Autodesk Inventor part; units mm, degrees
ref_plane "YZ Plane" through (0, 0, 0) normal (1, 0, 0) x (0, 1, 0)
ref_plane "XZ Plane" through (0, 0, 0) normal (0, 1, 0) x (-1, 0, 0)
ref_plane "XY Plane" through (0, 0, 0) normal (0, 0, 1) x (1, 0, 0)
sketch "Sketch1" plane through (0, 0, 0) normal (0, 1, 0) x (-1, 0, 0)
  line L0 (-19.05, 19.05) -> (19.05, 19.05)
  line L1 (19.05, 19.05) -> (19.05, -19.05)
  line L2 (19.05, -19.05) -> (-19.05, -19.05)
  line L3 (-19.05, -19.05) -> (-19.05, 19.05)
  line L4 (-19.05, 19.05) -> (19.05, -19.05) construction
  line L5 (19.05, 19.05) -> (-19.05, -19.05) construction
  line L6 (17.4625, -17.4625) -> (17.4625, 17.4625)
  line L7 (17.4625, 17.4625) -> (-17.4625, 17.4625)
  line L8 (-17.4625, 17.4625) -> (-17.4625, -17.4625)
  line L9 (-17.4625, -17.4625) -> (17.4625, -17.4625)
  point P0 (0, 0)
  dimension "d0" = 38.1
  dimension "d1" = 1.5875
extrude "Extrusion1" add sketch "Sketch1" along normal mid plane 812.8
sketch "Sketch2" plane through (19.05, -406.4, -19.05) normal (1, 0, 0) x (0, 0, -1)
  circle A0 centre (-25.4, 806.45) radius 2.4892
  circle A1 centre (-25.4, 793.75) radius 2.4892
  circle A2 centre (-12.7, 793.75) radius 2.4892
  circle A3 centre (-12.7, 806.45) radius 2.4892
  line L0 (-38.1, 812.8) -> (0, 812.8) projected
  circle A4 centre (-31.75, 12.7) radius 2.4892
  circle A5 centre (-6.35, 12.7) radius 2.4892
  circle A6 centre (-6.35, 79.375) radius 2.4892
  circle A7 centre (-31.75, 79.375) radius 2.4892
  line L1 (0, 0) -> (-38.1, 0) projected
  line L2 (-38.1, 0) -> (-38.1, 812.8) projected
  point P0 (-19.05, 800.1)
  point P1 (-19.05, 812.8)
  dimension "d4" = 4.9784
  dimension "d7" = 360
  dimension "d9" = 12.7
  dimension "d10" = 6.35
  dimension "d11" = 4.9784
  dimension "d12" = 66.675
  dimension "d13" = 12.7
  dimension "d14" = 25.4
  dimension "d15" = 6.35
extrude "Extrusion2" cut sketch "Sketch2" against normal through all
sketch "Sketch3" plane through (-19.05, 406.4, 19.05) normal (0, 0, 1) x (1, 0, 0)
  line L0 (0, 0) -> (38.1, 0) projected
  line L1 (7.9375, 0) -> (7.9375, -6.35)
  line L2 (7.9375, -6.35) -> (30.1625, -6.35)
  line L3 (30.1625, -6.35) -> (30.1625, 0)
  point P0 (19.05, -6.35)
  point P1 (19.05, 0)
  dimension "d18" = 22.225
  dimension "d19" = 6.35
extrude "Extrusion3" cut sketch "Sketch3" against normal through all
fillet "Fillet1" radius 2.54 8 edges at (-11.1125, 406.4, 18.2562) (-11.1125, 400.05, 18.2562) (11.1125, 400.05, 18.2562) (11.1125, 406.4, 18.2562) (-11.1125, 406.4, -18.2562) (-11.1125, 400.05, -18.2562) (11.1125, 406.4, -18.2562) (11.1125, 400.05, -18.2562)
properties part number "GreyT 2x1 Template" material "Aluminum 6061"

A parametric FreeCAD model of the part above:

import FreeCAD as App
import Part
import Sketcher

V = App.Vector
Q = App.Units.Quantity


def edges_at(feature, points):
    """Names of the edges that pass closest to the given points."""
    edges = feature.Shape.Edges
    near = lambda p: min(range(len(edges)), key=lambda i: edges[i].distToShape(Part.Vertex(*p))[0])
    return sorted({f"Edge{near(p) + 1}" for p in points})

doc = App.newDocument("Part")
body = doc.addObject("PartDesign::Body", "Body")

# Sketch on XZ plane
sketch1 = doc.addObject("Sketcher::SketchObject", "Sketch")
body.addObject(sketch1)
sketch1.AttachmentSupport = (doc.XZ_Plane, [""])
sketch1.MapMode = "FlatFace"
sketch1.addGeometry([
    Part.LineSegment(V(-19, 19, 0), V(19, 19, 0)),  # 0
    Part.LineSegment(V(19, 19, 0), V(19, -19, 0)),  # 1
    Part.LineSegment(V(19, -19, 0), V(-19, -19, 0)),  # 2
    Part.LineSegment(V(-19, -19, 0), V(-19, 19, 0)),  # 3
    Part.LineSegment(V(-17, 17, 0), V(-17, -17, 0)),  # 4
    Part.LineSegment(V(-17, -17, 0), V(17, -17, 0)),  # 5
    Part.LineSegment(V(17, -17, 0), V(17, 17, 0)),  # 6
    Part.LineSegment(V(17, 17, 0), V(-17, 17, 0)),  # 7
], False)
sketch1.addConstraint([
    Sketcher.Constraint("Coincident", 0, 2, 1, 1),
    Sketcher.Constraint("Coincident", 1, 2, 2, 1),
    Sketcher.Constraint("Coincident", 2, 2, 3, 1),
    Sketcher.Constraint("Coincident", 3, 2, 0, 1),
    Sketcher.Constraint("Coincident", 4, 2, 5, 1),
    Sketcher.Constraint("Coincident", 5, 2, 6, 1),
    Sketcher.Constraint("Coincident", 6, 2, 7, 1),
    Sketcher.Constraint("Coincident", 7, 2, 4, 1),
    Sketcher.Constraint("Horizontal", 0),
    Sketcher.Constraint("Vertical", 1),
    Sketcher.Constraint("Horizontal", 2),
    Sketcher.Constraint("Vertical", 3),
    Sketcher.Constraint("Vertical", 4),
    Sketcher.Constraint("Horizontal", 5),
    Sketcher.Constraint("Vertical", 6),
    Sketcher.Constraint("Horizontal", 7),
    Sketcher.Constraint("Symmetric", 0, 2, 2, 2, -1, 1),
    Sketcher.Constraint("Symmetric", 4, 2, 6, 2, -1, 1),
    Sketcher.Constraint("Equal", 2, 1),
    Sketcher.Constraint("Equal", 7, 4),
    Sketcher.Constraint("DistanceX", 0, 1, 0, 2, Q("1.5 in")),
    Sketcher.Constraint("DistanceX", 2, 2, 4, 2, Q("0.0625 in")),
])
pad1 = doc.addObject("PartDesign::Pad", "Pad")
body.addObject(pad1)
pad1.Profile = sketch1
pad1.Length = Q("32 in")
pad1.Midplane = True

# Sketch on YZ plane
sketch2 = doc.addObject("Sketcher::SketchObject", "Sketch001")
body.addObject(sketch2)
sketch2.AttachmentSupport = (doc.YZ_Plane, [""])
sketch2.MapMode = "FlatFace"
sketch2.AttachmentOffset = App.Placement(V(0, 0, 0.75 * 25.4), App.Rotation())
sketch2.addGeometry([
    Part.Circle(V(400.1, 6.3, 0), V(0, 0, 1), 2.5),  # 0
    Part.Circle(V(387.4, 6.3, 0), V(0, 0, 1), 2.5),  # 1
    Part.Circle(V(387.4, -6.3, 0), V(0, 0, 1), 2.5),  # 2
    Part.Circle(V(400.1, -6.3, 0), V(0, 0, 1), 2.5),  # 3
    Part.Circle(V(-393.7, 12.7, 0), V(0, 0, 1), 2.5),  # 4
    Part.Circle(V(-393.7, -12.7, 0), V(0, 0, 1), 2.5),  # 5
    Part.Circle(V(-327, -12.7, 0), V(0, 0, 1), 2.5),  # 6
    Part.Circle(V(-327, 12.7, 0), V(0, 0, 1), 2.5),  # 7
], False)
sketch2.addConstraint([
    Sketcher.Constraint("Equal", 0, 1),
    Sketcher.Constraint("Equal", 1, 2),
    Sketcher.Constraint("Equal", 2, 3),
    Sketcher.Constraint("Equal", 3, 4),
    Sketcher.Constraint("Equal", 4, 5),
    Sketcher.Constraint("Equal", 5, 6),
    Sketcher.Constraint("Equal", 6, 7),
    Sketcher.Constraint("Symmetric", 1, 3, 2, 3, -1),
    Sketcher.Constraint("Symmetric", 0, 3, 3, 3, -1),
    Sketcher.Constraint("Symmetric", 4, 3, 5, 3, -1),
    Sketcher.Constraint("Symmetric", 6, 3, 7, 3, -1),
    Sketcher.Constraint("Horizontal", 0, 3, 1, 3),
    Sketcher.Constraint("Horizontal", 5, 3, 6, 3),
    Sketcher.Constraint("Diameter", 0, Q("0.196 in")),
    Sketcher.Constraint("DistanceY", 5, 3, 4, 3, Q("1 in")),
    Sketcher.Constraint("DistanceX", 1, 3, 0, 3, Q("0.5 in")),
    Sketcher.Constraint("DistanceY", 2, 3, 1, 3, Q("0.5 in")),
    Sketcher.Constraint("DistanceX", 5, 3, 6, 3, Q("2.625 in")),
    Sketcher.Constraint("DistanceX", 4, 3, -1, 1, Q("15.5 in")),
    Sketcher.Constraint("DistanceX", -1, 1, 0, 3, Q("15.75 in")),
])
pocket1 = doc.addObject("PartDesign::Pocket", "Pocket")
body.addObject(pocket1)
pocket1.Profile = sketch2
pocket1.Type = "ThroughAll"

# Sketch on XY plane
sketch3 = doc.addObject("Sketcher::SketchObject", "Sketch002")
body.addObject(sketch3)
sketch3.AttachmentSupport = (doc.XY_Plane, [""])
sketch3.MapMode = "FlatFace"
sketch3.AttachmentOffset = App.Placement(V(0, 0, 0.75 * 25.4), App.Rotation())
sketch3.addGeometry([
    Part.LineSegment(V(11, 406, 0), V(-11, 406, 0)),
    Part.LineSegment(V(-11, 406, 0), V(-11, 400, 0)),
    Part.LineSegment(V(-11, 400, 0), V(11, 400, 0)),
    Part.LineSegment(V(11, 400, 0), V(11, 406, 0)),
], False)
sketch3.addConstraint([
    Sketcher.Constraint("Coincident", 0, 2, 1, 1),
    Sketcher.Constraint("Coincident", 1, 2, 2, 1),
    Sketcher.Constraint("Coincident", 2, 2, 3, 1),
    Sketcher.Constraint("Coincident", 3, 2, 0, 1),
    Sketcher.Constraint("Horizontal", 0),
    Sketcher.Constraint("Vertical", 1),
    Sketcher.Constraint("Horizontal", 2),
    Sketcher.Constraint("Vertical", 3),
    Sketcher.Constraint("DistanceY", 1, 2, 1, 1, Q("0.25 in")),
    Sketcher.Constraint("DistanceX", 0, 2, 0, 1, Q("0.875 in")),
    Sketcher.Constraint("DistanceY", -1, 1, 0, 2, Q("16 in")),
    Sketcher.Constraint("DistanceX", 0, 2, -1, 1, Q("0.4375 in")),
])
pocket2 = doc.addObject("PartDesign::Pocket", "Pocket001")
body.addObject(pocket2)
pocket2.Profile = sketch3
pocket2.Type = "ThroughAll"
doc.recompute()

fillet = doc.addObject("PartDesign::Fillet", "Fillet")
body.addObject(fillet)
fillet.Base = (pocket2, edges_at(pocket2, [
    (-11.113, 406.4, 18.256),
    (-11.113, 400.05, 18.256),
    (11.113, 400.05, 18.256),
    (11.113, 406.4, 18.256),
    (-11.113, 406.4, -18.256),
    (-11.113, 400.05, -18.256),
    (11.113, 406.4, -18.256),
    (11.113, 400.05, -18.256),
]))
fillet.Radius = Q("0.1 in")

doc.recompute()
